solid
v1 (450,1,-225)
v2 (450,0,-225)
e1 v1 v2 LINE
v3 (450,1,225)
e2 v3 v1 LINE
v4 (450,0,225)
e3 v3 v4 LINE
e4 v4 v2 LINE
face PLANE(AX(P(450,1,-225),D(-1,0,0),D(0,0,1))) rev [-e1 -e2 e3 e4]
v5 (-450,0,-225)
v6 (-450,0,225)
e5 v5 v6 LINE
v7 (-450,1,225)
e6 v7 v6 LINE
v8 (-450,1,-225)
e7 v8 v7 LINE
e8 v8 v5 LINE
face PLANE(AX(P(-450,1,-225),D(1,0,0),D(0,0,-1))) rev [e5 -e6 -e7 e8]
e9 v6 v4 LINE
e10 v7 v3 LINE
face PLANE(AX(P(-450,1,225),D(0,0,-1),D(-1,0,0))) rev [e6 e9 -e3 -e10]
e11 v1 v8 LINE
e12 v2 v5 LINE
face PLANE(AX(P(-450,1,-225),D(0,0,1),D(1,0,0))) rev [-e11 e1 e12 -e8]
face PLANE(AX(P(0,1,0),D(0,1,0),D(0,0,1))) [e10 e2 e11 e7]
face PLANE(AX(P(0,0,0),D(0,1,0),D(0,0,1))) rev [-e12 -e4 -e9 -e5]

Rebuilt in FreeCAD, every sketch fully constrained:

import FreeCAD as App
import Part
import Sketcher

doc = App.newDocument("Part")
body = doc.addObject("PartDesign::Body", "Body")

sketch1 = body.newObject("Sketcher::SketchObject", "Sketch")
sketch1.AttachmentSupport = (doc.getObject("XZ_Plane"), [""])
sketch1.MapMode = "FlatFace"
sketch1.addGeometry(Part.LineSegment(App.Vector(-450, -225, 0), App.Vector(-450, 225, 0)), False)
sketch1.addGeometry(Part.LineSegment(App.Vector(-450, 225, 0), App.Vector(450, 225, 0)), False)
sketch1.addGeometry(Part.LineSegment(App.Vector(450, 225, 0), App.Vector(450, -225, 0)), False)
sketch1.addGeometry(Part.LineSegment(App.Vector(450, -225, 0), App.Vector(-450, -225, 0)), False)
sketch1.addConstraint(Sketcher.Constraint("Coincident", 0, 2, 1, 1))
sketch1.addConstraint(Sketcher.Constraint("Coincident", 1, 2, 2, 1))
sketch1.addConstraint(Sketcher.Constraint("Coincident", 2, 2, 3, 1))
sketch1.addConstraint(Sketcher.Constraint("Coincident", 3, 2, 0, 1))
sketch1.addConstraint(Sketcher.Constraint("Vertical", 0))
sketch1.addConstraint(Sketcher.Constraint("Horizontal", 1))
sketch1.addConstraint(Sketcher.Constraint("Vertical", 2))
sketch1.addConstraint(Sketcher.Constraint("Horizontal", 3))
sketch1.addConstraint(Sketcher.Constraint("Symmetric", 0, 2, 2, 2, -1, 1))
sketch1.addConstraint(Sketcher.Constraint("DistanceX", 1, 1, 1, 2, 900.0))
sketch1.addConstraint(Sketcher.Constraint("DistanceY", 0, 1, 0, 2, 450.0))
pad1 = body.newObject("PartDesign::Pad", "Pad")
pad1.Profile = sketch1
pad1.Length = 1
pad1.Reversed = True

doc.recompute()
